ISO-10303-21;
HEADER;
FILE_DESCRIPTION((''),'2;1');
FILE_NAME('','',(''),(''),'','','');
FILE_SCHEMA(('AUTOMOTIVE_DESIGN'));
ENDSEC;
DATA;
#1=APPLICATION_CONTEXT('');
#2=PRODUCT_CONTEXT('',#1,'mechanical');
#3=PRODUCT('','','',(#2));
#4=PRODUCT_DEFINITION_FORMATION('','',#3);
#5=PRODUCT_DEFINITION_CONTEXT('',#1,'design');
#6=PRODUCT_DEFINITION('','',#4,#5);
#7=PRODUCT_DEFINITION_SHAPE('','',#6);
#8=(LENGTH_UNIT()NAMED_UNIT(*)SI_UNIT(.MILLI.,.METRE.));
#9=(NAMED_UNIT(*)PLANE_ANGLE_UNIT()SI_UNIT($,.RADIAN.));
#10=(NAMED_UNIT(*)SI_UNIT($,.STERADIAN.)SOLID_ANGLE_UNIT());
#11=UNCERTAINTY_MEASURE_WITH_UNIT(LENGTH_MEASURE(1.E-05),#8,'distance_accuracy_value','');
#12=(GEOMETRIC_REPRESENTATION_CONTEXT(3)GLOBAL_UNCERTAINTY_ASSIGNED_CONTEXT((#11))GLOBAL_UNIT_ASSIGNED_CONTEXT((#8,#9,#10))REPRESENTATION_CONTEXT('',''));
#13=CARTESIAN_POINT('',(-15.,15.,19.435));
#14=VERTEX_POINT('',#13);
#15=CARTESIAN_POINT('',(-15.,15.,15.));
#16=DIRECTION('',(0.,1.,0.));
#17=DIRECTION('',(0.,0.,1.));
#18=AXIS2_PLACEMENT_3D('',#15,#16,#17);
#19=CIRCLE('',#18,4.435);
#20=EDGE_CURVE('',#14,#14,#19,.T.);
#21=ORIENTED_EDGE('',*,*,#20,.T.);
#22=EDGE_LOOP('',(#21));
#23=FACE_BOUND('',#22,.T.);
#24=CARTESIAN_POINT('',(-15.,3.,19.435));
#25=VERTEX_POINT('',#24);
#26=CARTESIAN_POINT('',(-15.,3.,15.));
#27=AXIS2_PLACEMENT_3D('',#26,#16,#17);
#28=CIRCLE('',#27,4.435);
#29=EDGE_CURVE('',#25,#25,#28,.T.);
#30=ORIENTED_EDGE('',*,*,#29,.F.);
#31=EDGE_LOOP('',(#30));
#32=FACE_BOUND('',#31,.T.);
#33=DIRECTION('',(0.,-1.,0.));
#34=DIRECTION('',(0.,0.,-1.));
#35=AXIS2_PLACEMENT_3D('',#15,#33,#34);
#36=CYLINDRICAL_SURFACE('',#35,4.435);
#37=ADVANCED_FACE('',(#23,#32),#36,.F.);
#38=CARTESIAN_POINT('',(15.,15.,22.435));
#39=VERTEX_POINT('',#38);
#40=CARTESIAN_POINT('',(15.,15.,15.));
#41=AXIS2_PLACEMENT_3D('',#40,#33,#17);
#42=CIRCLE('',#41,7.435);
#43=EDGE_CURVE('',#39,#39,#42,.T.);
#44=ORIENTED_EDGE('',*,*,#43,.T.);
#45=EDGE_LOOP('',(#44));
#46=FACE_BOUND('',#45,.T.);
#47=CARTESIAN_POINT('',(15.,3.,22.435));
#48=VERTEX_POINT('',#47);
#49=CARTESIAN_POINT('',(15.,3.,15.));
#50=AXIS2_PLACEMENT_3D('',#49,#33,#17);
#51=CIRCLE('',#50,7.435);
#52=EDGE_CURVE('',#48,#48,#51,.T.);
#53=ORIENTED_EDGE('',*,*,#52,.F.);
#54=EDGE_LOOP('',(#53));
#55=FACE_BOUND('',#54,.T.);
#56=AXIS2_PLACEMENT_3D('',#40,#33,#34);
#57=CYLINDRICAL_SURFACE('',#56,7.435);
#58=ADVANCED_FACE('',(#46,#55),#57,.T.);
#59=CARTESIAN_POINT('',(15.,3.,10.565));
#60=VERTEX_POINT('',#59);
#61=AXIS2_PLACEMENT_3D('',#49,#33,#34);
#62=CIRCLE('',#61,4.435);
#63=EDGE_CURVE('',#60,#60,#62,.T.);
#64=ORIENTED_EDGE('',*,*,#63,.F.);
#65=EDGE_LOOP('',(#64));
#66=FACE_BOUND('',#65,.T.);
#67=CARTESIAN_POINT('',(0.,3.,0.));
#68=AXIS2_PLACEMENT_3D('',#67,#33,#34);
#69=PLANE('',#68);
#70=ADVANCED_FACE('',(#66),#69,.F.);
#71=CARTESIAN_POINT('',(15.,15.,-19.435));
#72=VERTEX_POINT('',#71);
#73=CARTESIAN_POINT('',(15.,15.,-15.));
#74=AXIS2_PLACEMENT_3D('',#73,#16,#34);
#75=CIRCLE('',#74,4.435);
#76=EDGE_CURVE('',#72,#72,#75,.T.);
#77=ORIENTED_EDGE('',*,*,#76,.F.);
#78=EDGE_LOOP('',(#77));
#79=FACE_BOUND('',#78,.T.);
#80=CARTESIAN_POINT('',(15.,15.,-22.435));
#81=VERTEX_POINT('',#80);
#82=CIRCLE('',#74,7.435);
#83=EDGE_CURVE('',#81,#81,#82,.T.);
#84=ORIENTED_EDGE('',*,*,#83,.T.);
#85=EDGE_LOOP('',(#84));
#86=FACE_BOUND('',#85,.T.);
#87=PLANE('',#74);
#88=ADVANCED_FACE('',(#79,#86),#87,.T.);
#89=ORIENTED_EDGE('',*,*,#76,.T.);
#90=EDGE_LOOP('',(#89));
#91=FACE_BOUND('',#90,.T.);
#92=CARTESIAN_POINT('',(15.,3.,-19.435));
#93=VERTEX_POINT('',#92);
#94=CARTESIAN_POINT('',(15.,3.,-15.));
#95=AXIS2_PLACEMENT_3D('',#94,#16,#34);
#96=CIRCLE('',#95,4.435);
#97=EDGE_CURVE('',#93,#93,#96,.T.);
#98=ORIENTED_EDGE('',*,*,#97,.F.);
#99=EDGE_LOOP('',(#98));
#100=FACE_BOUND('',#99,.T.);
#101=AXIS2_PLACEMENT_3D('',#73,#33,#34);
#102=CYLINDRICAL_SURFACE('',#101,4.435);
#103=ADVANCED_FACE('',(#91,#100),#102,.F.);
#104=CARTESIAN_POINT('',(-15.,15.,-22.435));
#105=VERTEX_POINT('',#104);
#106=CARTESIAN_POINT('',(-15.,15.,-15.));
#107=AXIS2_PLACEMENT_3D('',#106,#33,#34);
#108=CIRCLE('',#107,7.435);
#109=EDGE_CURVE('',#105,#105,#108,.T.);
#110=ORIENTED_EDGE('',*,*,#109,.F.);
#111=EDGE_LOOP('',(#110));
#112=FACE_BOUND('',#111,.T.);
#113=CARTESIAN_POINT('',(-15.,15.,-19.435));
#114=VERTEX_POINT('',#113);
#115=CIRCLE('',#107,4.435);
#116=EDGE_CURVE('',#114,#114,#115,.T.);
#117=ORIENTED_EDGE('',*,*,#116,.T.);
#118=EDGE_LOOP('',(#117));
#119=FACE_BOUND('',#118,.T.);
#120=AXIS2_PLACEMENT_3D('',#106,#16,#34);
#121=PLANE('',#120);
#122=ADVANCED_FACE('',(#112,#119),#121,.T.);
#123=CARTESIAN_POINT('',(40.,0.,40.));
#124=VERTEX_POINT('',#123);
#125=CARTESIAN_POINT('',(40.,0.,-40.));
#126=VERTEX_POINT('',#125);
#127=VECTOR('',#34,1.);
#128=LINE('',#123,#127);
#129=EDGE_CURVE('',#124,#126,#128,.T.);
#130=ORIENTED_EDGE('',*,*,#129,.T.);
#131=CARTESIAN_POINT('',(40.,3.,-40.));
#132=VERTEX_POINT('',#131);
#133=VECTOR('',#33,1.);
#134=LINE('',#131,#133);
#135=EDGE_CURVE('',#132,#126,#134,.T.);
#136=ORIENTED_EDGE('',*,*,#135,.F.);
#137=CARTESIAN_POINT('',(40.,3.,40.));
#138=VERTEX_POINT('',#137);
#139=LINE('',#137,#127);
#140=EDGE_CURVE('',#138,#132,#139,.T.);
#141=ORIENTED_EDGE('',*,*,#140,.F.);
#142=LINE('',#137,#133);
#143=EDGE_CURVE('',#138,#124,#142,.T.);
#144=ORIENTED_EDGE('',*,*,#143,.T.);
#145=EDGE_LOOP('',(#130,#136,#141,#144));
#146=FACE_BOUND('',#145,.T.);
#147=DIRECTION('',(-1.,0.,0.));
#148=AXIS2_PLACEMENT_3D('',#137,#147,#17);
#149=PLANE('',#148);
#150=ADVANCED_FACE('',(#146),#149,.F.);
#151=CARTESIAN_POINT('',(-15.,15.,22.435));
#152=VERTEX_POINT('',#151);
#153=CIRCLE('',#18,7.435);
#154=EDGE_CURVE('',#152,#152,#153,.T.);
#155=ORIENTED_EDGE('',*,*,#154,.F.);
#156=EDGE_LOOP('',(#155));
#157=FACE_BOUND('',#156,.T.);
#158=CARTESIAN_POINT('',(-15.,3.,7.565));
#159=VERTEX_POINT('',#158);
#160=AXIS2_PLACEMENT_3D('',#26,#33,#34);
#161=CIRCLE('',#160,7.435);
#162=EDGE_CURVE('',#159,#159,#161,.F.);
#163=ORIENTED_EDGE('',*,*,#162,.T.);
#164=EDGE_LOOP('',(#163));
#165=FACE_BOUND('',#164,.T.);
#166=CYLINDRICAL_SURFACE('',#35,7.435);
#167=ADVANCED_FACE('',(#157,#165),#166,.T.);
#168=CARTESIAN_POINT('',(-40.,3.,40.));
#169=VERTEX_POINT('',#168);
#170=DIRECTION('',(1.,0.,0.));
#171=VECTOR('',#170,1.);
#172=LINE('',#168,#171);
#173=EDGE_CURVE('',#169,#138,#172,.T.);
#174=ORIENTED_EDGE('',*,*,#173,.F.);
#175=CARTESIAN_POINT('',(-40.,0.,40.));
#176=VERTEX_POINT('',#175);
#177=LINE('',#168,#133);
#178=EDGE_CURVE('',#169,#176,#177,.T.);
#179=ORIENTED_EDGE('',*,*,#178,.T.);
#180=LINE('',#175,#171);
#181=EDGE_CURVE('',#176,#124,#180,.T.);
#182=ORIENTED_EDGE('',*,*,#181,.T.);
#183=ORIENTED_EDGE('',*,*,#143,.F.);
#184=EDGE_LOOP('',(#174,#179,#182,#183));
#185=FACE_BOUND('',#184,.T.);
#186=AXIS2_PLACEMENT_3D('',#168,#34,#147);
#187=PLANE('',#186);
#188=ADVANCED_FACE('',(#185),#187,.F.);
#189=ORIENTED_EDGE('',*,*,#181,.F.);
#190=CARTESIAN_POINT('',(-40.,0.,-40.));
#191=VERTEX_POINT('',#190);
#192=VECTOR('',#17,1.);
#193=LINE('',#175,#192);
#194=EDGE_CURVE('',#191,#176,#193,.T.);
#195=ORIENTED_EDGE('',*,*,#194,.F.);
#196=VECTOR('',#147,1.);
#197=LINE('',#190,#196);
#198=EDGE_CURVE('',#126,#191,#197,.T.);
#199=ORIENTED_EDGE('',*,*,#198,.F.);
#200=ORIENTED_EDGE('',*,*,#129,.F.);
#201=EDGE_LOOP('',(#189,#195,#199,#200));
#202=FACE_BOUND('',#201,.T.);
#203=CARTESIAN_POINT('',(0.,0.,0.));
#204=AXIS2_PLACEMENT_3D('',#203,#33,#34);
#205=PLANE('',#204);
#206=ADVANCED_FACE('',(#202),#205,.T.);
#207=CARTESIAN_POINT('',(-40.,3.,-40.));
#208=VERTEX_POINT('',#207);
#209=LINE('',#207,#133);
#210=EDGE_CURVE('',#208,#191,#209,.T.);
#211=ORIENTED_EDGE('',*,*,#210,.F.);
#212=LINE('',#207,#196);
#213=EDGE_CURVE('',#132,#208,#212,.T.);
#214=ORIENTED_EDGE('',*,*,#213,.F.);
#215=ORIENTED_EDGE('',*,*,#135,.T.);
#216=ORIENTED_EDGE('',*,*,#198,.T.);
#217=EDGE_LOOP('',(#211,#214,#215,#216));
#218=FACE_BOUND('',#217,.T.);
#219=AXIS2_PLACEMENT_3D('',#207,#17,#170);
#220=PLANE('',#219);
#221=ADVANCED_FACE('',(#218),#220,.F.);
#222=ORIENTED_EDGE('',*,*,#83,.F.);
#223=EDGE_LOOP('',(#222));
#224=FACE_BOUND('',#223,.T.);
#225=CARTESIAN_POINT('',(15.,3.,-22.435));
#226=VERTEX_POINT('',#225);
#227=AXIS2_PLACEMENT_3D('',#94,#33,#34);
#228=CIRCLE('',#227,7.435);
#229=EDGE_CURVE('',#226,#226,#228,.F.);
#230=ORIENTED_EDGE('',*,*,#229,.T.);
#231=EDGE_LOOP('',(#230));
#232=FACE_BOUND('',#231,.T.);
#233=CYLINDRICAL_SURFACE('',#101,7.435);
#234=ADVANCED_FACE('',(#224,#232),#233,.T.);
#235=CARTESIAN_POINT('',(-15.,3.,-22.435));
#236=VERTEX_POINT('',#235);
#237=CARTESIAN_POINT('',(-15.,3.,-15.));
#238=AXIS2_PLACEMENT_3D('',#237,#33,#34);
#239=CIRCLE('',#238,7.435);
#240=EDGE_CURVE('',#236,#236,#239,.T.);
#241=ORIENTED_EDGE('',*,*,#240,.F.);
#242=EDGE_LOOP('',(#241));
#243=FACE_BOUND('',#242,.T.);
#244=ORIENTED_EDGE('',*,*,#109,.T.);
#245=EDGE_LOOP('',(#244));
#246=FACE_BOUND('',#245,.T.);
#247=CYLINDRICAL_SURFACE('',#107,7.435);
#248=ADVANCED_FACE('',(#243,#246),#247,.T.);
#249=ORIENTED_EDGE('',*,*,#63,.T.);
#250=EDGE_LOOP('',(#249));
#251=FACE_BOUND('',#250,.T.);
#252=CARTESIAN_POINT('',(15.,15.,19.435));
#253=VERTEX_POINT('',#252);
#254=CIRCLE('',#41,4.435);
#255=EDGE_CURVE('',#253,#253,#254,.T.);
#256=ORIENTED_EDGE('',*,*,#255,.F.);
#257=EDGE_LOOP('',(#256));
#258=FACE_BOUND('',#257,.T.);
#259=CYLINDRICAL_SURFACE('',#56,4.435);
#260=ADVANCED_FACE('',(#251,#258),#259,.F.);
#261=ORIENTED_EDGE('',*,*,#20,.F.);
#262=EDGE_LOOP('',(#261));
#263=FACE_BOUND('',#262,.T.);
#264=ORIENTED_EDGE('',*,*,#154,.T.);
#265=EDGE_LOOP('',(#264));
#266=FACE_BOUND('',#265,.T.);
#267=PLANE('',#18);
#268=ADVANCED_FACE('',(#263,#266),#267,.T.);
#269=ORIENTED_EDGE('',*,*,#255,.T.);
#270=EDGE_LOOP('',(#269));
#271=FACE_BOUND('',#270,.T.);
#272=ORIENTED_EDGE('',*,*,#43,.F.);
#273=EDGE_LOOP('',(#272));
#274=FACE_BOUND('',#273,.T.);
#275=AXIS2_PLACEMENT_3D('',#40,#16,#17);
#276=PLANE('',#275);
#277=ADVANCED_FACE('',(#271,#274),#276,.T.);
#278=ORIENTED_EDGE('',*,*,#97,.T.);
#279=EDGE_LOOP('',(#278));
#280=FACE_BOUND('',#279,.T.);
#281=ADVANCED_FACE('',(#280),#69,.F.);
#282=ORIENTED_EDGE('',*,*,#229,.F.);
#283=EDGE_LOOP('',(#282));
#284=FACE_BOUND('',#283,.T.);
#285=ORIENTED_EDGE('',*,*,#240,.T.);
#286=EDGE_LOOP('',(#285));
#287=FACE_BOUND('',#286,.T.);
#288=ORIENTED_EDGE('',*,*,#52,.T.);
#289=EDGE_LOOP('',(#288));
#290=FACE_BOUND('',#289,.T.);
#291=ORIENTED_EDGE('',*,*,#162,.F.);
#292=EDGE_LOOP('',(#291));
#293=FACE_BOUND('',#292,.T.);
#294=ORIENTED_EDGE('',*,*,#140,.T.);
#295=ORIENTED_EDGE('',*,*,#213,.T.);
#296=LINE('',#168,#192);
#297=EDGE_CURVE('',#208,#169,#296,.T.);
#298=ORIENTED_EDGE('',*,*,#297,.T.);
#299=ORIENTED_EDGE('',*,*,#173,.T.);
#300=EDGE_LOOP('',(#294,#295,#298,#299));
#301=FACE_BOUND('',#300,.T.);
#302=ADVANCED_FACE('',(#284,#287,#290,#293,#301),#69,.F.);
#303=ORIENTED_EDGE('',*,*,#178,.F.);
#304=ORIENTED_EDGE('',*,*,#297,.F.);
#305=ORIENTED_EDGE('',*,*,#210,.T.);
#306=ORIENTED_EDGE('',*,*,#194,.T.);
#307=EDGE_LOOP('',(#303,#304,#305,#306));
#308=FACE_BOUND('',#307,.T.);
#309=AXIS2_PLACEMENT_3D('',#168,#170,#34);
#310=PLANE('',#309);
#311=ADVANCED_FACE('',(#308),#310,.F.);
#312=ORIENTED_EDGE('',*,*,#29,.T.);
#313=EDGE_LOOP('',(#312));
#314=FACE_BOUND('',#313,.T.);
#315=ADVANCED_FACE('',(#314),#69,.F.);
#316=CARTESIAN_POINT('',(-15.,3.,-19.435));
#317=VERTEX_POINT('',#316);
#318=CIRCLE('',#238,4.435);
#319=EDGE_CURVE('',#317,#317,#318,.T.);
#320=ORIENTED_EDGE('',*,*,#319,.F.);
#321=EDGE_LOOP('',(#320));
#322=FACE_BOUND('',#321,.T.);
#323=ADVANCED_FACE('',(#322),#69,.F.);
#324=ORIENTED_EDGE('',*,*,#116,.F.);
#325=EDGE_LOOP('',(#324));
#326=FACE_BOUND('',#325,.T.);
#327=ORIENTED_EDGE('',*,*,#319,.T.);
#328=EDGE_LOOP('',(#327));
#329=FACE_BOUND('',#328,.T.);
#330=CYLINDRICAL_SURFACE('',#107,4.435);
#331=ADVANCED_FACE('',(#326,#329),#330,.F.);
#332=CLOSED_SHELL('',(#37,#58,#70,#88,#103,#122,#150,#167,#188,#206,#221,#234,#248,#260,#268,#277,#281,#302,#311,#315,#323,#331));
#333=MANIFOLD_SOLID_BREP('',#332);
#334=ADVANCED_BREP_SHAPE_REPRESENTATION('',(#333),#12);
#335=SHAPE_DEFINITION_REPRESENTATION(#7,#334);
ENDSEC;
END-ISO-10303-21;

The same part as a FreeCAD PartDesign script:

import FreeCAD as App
import Part
import Sketcher

V = App.Vector
Q = App.Units.Quantity


def add_polygon(sketch, points):
    """Adds a closed chain of lines whose ends are joined by coincident constraints."""
    first, n = sketch.GeometryCount, len(points)
    for a, b in zip(points, points[1:] + points[:1]):
        sketch.addGeometry(Part.LineSegment(App.Vector(*a, 0), App.Vector(*b, 0)), False)
    for i in range(n):
        sketch.addConstraint(Sketcher.Constraint("Coincident", first + i, 2, first + (i + 1) % n, 1))

doc = App.newDocument("Part")
body = doc.addObject("PartDesign::Body", "Body")

sketch1 = body.newObject("Sketcher::SketchObject", "Sketch")
sketch1.AttachmentSupport = (doc.getObject("XZ_Plane"), [""])
sketch1.MapMode = "FlatFace"
add_polygon(sketch1, [(-40, -40), (-40, 40), (40, 40), (40, -40)])
sketch1.addConstraint([
    Sketcher.Constraint("Vertical", 0),
    Sketcher.Constraint("Horizontal", 1),
    Sketcher.Constraint("Vertical", 2),
    Sketcher.Constraint("Horizontal", 3),
    Sketcher.Constraint("Symmetric", 0, 2, 2, 2, -1, 1),
    Sketcher.Constraint("Equal", 3, 0),
    Sketcher.Constraint("DistanceX", 1, 1, 1, 2, Q("80 mm")),
])
pad1 = body.newObject("PartDesign::Pad", "Pad")
pad1.Profile = sketch1
pad1.Length = 3
pad1.Reversed = True

sketch2 = body.newObject("Sketcher::SketchObject", "Sketch001")
sketch2.AttachmentSupport = (doc.getObject("XZ_Plane"), [""])
sketch2.MapMode = "FlatFace"
sketch2.AttachmentOffset = App.Placement(V(0, 0, -3), App.Rotation())
sketch2.addGeometry([
    Part.Circle(V(-15, 15, 0), V(0, 0, 1), 7.435),
    Part.Circle(V(-15, 15, 0), V(0, 0, 1), 4.435),
], False)
sketch2.addConstraint([
    Sketcher.Constraint("Coincident", 1, 3, 0, 3),
    Sketcher.Constraint("Diameter", 0, Q("14.87 mm")),
    Sketcher.Constraint("Diameter", 1, Q("8.87 mm")),
    Sketcher.Constraint("DistanceX", 0, 3, -1, 1, Q("15 mm")),
    Sketcher.Constraint("DistanceY", -1, 1, 0, 3, Q("15 mm")),
])
pad2 = body.newObject("PartDesign::Pad", "Pad001")
pad2.Profile = sketch2
pad2.Length = 12
pad2.Reversed = True
doc.recompute()

mirrored = body.newObject("PartDesign::Mirrored", "Mirrored")
mirrored.Originals = [pad2]
mirrored.MirrorPlane = (doc.getObject("XY_Plane"), [""])
body.Tip = mirrored
doc.recompute()

mirrored2 = body.newObject("PartDesign::Mirrored", "Mirrored001")
mirrored2.Originals = [pad2]
mirrored2.MirrorPlane = (doc.getObject("YZ_Plane"), [""])
body.Tip = mirrored2

sketch3 = body.newObject("Sketcher::SketchObject", "Sketch002")
sketch3.AttachmentSupport = (doc.getObject("XZ_Plane"), [""])
sketch3.MapMode = "FlatFace"
sketch3.AttachmentOffset = App.Placement(V(0, 0, -3), App.Rotation())
sketch3.addGeometry([
    Part.Circle(V(15, -15, 0), V(0, 0, 1), 7.435),
    Part.Circle(V(15, -15, 0), V(0, 0, 1), 4.435),
], False)
sketch3.addConstraint([
    Sketcher.Constraint("Coincident", 1, 3, 0, 3),
    Sketcher.Constraint("Diameter", 0, Q("14.87 mm")),
    Sketcher.Constraint("Diameter", 1, Q("8.87 mm")),
    Sketcher.Constraint("DistanceX", -1, 1, 0, 3, Q("15 mm")),
    Sketcher.Constraint("DistanceY", 0, 3, -1, 1, Q("15 mm")),
])
pad3 = body.newObject("PartDesign::Pad", "Pad002")
pad3.Profile = sketch3
pad3.Length = 12
pad3.Reversed = True

doc.recompute()
